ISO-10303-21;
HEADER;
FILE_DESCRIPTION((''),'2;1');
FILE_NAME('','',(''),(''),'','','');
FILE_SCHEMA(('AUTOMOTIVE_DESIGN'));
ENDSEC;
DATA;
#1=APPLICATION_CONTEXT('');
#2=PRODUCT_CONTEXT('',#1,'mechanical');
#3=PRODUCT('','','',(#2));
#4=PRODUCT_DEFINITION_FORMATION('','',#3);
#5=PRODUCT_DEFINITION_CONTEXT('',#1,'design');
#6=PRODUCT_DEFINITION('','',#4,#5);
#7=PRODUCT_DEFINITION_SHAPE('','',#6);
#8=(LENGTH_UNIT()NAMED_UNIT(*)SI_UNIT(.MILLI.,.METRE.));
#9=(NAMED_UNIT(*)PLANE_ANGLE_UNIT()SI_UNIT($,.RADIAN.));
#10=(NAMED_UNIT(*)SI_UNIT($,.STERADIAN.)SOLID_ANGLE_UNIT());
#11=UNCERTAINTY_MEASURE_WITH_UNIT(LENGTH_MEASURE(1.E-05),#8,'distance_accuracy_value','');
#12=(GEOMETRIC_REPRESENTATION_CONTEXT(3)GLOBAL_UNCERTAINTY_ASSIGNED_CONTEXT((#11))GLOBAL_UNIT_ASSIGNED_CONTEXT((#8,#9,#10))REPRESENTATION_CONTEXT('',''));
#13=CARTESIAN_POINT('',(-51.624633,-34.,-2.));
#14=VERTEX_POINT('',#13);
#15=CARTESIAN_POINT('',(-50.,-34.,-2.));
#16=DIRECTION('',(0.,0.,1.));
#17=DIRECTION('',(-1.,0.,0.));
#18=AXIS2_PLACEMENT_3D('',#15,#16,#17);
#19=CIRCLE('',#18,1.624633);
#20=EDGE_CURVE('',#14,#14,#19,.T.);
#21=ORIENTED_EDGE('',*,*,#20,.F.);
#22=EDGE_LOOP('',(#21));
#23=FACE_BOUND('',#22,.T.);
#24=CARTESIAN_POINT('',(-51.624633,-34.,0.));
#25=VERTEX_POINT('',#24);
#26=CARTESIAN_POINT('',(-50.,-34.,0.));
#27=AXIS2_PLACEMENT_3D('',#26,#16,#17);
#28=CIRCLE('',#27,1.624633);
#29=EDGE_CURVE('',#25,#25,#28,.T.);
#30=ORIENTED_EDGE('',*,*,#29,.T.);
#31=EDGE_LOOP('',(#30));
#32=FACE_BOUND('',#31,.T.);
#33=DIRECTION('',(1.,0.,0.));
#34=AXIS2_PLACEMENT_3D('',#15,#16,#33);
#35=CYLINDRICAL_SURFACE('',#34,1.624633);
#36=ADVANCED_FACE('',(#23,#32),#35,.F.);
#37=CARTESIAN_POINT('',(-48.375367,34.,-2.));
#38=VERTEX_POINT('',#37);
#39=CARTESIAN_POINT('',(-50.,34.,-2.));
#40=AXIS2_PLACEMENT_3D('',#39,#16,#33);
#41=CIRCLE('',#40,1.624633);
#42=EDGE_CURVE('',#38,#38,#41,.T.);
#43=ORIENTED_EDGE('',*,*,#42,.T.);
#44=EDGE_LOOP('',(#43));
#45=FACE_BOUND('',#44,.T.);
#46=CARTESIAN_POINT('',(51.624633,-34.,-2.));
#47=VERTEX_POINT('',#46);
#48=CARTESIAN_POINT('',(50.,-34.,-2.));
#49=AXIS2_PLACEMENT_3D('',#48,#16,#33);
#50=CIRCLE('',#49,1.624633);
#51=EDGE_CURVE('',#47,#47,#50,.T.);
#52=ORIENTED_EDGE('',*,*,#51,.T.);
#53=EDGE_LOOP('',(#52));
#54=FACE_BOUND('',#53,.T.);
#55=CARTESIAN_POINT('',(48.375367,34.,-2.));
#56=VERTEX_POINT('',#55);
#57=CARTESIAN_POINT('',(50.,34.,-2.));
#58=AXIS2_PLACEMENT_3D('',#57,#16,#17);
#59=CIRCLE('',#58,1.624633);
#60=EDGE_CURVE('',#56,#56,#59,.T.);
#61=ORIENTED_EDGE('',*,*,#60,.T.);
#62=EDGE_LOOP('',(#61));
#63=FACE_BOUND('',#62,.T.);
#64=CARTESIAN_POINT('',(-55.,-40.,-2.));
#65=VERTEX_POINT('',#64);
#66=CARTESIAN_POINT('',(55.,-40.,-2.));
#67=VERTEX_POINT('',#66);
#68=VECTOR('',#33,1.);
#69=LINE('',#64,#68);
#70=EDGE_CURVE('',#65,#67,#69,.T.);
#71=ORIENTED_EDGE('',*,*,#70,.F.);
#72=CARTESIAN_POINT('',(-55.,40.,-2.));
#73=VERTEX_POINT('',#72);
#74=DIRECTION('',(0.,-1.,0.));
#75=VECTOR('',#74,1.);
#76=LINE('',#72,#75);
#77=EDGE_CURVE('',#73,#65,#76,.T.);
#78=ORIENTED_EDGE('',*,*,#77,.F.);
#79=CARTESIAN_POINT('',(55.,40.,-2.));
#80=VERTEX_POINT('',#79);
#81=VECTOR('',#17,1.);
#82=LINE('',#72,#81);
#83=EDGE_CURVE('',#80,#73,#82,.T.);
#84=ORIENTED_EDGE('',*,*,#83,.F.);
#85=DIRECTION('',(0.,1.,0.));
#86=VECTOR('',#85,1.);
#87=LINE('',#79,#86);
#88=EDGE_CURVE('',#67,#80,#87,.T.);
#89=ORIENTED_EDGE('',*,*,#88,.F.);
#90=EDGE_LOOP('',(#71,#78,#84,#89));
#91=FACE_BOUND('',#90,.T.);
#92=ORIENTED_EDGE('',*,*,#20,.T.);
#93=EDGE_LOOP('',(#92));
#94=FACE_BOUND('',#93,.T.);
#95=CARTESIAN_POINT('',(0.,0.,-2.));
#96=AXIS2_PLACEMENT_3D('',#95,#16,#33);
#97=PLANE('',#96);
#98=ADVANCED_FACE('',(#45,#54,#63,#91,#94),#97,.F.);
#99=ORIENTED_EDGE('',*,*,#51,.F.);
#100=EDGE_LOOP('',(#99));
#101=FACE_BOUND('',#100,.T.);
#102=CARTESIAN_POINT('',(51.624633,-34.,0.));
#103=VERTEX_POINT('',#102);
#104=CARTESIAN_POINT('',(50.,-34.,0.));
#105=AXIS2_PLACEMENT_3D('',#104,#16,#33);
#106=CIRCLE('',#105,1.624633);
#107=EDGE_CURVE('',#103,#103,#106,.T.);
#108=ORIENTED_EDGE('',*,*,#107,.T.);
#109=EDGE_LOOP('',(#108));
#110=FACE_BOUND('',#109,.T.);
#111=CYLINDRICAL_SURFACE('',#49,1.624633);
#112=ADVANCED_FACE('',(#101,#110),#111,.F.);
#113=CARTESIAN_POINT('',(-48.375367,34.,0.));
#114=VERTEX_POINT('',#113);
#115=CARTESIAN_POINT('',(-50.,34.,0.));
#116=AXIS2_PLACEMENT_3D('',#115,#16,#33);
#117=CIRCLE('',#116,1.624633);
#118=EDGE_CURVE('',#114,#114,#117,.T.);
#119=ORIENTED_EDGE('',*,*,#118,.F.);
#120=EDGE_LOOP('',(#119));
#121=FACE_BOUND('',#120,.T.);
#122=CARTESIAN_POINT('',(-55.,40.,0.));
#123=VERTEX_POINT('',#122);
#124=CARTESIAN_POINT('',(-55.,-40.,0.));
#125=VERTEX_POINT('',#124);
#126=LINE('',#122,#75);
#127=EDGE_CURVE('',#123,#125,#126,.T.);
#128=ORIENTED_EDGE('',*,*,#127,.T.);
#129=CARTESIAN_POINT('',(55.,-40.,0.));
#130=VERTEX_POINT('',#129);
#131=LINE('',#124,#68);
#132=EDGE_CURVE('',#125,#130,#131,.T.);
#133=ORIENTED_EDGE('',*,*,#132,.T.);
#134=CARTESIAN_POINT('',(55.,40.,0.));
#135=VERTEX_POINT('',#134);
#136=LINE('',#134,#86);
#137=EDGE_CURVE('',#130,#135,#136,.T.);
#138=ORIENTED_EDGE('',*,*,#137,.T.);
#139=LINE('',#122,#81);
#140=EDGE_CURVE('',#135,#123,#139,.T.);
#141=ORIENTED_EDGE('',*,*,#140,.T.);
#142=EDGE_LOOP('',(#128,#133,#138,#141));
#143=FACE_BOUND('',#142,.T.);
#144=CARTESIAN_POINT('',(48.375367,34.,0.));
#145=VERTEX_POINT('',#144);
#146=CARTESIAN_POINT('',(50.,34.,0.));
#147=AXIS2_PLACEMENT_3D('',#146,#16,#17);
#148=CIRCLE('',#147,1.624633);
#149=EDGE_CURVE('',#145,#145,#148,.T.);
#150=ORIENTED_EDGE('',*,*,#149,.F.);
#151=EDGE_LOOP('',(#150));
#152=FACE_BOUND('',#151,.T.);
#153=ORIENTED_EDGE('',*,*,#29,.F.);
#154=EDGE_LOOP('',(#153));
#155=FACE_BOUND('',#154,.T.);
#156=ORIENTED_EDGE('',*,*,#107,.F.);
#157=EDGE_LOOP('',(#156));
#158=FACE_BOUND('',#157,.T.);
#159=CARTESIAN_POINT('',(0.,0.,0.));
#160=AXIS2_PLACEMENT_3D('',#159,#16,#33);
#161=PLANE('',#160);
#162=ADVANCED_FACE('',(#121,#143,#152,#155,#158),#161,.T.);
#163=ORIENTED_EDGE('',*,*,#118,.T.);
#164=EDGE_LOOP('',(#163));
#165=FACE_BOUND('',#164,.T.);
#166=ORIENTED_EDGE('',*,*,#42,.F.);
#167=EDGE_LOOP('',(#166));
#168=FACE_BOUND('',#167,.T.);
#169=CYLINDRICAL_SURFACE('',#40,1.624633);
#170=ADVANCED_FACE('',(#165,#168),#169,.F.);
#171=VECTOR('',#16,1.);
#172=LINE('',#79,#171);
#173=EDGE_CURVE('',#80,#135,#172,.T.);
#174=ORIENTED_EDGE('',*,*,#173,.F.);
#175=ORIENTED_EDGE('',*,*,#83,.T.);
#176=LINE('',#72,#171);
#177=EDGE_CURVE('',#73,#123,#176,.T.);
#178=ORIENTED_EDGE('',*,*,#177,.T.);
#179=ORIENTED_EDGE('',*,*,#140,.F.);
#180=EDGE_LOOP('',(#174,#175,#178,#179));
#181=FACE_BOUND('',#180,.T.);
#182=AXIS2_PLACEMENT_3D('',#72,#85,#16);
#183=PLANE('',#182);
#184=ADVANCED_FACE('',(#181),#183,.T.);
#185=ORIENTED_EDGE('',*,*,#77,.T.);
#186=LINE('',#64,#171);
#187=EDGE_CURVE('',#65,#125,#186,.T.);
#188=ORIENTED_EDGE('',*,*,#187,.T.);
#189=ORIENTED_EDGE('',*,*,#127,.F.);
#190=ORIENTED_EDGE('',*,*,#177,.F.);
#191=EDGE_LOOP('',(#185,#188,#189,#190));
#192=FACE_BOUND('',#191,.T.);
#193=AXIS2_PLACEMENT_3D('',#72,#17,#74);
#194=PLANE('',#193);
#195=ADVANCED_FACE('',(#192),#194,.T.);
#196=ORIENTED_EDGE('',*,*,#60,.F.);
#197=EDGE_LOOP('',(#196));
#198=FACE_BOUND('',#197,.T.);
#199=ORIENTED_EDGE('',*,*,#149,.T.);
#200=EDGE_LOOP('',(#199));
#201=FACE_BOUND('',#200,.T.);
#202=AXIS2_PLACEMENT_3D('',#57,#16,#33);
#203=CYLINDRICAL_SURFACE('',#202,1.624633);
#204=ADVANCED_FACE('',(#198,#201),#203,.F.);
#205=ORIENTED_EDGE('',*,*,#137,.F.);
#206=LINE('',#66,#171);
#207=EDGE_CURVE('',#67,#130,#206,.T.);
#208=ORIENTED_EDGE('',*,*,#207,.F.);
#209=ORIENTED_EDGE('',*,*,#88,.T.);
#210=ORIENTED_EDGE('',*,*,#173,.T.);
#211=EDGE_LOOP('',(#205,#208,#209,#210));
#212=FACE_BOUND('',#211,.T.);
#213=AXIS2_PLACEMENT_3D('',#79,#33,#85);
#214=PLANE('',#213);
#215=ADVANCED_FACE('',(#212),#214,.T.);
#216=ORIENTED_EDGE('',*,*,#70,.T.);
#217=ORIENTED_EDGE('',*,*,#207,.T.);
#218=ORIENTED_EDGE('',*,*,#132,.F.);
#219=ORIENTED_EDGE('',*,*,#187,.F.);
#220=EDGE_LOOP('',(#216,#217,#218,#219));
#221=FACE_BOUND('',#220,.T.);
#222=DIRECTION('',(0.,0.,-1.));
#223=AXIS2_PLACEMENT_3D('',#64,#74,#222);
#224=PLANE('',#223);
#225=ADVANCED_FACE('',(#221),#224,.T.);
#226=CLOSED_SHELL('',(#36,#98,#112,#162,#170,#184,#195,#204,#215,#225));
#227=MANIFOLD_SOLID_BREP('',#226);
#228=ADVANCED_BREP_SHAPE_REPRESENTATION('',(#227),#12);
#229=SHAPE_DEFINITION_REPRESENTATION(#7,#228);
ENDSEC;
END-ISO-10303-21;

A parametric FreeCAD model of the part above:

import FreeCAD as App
import Part
import Sketcher
from FreeCAD import Vector
Q = App.Units.Quantity


def add_polygon(sketch, points):
    """Adds a closed chain of lines whose ends are joined by coincident constraints."""
    first, n = sketch.GeometryCount, len(points)
    for a, b in zip(points, points[1:] + points[:1]):
        sketch.addGeometry(Part.LineSegment(App.Vector(*a, 0), App.Vector(*b, 0)), False)
    for i in range(n):
        sketch.addConstraint(Sketcher.Constraint("Coincident", first + i, 2, first + (i + 1) % n, 1))

doc = App.newDocument("Part")
body = doc.addObject("PartDesign::Body", "Body")

# Sketch on XY plane
sketch1 = body.newObject("Sketcher::SketchObject", "Sketch")
sketch1.AttachmentSupport = (doc.getObject("XY_Plane"), [""])
sketch1.MapMode = "FlatFace"
add_polygon(sketch1, [(-55, 40), (-55, -40), (55, -40), (55, 40)])  # lines 0-3
sketch1.addConstraint([
    Sketcher.Constraint("Vertical", 0),
    Sketcher.Constraint("Horizontal", 1),
    Sketcher.Constraint("Vertical", 2),
    Sketcher.Constraint("Horizontal", 3),
    Sketcher.Constraint("Symmetric", 0, 2, 2, 2, -1, 1),
    Sketcher.Constraint("DistanceX", 1, 1, 1, 2, Q("110 mm")),
    Sketcher.Constraint("DistanceY", 0, 2, 0, 1, Q("80 mm")),
])
pad1 = body.newObject("PartDesign::Pad", "Pad")
pad1.Profile = sketch1
pad1.Length = 2
pad1.Reversed = True

# Sketch on XY plane
sketch2 = body.newObject("Sketcher::SketchObject", "Sketch001")
sketch2.AttachmentSupport = (doc.getObject("XY_Plane"), [""])
sketch2.MapMode = "FlatFace"
sketch2.addGeometry([
    Part.Circle(Vector(-50, 34, 0), Vector(0, 0, 1), 1.624633),
    Part.Circle(Vector(50, 34, 0), Vector(0, 0, 1), 1.624633),
    Part.Circle(Vector(50, -34, 0), Vector(0, 0, 1), 1.624633),
    Part.Circle(Vector(-50, -34, 0), Vector(0, 0, 1), 1.624633),
], False)
sketch2.addConstraint([
    Sketcher.Constraint("Equal", 0, 1),
    Sketcher.Constraint("Equal", 1, 2),
    Sketcher.Constraint("Equal", 2, 3),
    Sketcher.Constraint("Symmetric", 0, 3, 2, 3, -1, 1),
    Sketcher.Constraint("Symmetric", 1, 3, 3, 3, -1, 1),
    Sketcher.Constraint("Symmetric", 0, 3, 1, 3, -2),
    Sketcher.Constraint("DistanceX", 0, 3, -1, 1, Q("50 mm")),
    Sketcher.Constraint("DistanceY", -1, 1, 0, 3, Q("34 mm")),
    Sketcher.Constraint("Diameter", 0, Q("3.249266 mm")),
])
pocket1 = body.newObject("PartDesign::Pocket", "Pocket")
pocket1.Profile = sketch2
pocket1.Type = "ThroughAll"

doc.recompute()
